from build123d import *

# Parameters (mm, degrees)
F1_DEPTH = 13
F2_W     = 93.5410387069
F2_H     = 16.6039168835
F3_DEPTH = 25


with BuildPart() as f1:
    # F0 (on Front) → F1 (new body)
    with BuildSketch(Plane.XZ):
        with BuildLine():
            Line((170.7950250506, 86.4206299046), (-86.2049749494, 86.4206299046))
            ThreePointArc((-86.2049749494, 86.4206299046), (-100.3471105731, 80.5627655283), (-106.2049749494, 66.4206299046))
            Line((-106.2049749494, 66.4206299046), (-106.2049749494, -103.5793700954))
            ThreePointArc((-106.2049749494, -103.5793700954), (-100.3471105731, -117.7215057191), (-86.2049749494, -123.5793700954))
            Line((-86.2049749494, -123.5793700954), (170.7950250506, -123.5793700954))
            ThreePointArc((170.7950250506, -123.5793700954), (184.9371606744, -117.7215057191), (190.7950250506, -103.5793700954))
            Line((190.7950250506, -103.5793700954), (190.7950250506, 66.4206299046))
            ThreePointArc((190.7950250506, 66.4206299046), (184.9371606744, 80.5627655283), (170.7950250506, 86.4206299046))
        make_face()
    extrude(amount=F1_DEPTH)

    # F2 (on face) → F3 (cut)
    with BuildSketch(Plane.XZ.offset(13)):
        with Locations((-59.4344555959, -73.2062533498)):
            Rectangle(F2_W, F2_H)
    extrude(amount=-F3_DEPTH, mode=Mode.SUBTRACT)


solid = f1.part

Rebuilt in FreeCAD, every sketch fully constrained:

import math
import FreeCAD as App
import Part
import Sketcher
Q = App.Units.Quantity

doc = App.newDocument("Part")
body = doc.addObject("PartDesign::Body", "Body")

sketch1 = body.newObject("Sketcher::SketchObject", "Sketch")
sketch1.AttachmentSupport = (doc.getObject("XZ_Plane"), [""])
sketch1.MapMode = "FlatFace"
sketch1.addGeometry([
    Part.LineSegment(App.Vector(170.795025, 86.42063, 0), App.Vector(-86.204975, 86.42063, 0)),
    Part.ArcOfCircle(Part.Circle(App.Vector(-86.204975, 66.42063, 0), App.Vector(0, 0, 1), 20), math.radians(90), math.radians(180)),
    Part.LineSegment(App.Vector(-106.204975, 66.42063, 0), App.Vector(-106.204975, -103.57937, 0)),
    Part.ArcOfCircle(Part.Circle(App.Vector(-86.204975, -103.57937, 0), App.Vector(0, 0, 1), 20), math.radians(180), math.radians(270)),
    Part.LineSegment(App.Vector(-86.204975, -123.57937, 0), App.Vector(170.795025, -123.57937, 0)),
    Part.ArcOfCircle(Part.Circle(App.Vector(170.795025, -103.57937, 0), App.Vector(0, 0, 1), 20), math.radians(-90), math.radians(0)),
    Part.LineSegment(App.Vector(190.795025, -103.57937, 0), App.Vector(190.795025, 66.42063, 0)),
    Part.ArcOfCircle(Part.Circle(App.Vector(170.795025, 66.42063, 0), App.Vector(0, 0, 1), 20), math.radians(0), math.radians(90)),
], False)
sketch1.addConstraint([
    Sketcher.Constraint("Tangent", 0, 2, 1, 1),
    Sketcher.Constraint("Tangent", 1, 2, 2, 1),
    Sketcher.Constraint("Tangent", 2, 2, 3, 1),
    Sketcher.Constraint("Tangent", 3, 2, 4, 1),
    Sketcher.Constraint("Tangent", 4, 2, 5, 1),
    Sketcher.Constraint("Tangent", 5, 2, 6, 1),
    Sketcher.Constraint("Tangent", 6, 2, 7, 1),
    Sketcher.Constraint("Tangent", 7, 2, 0, 1),
    Sketcher.Constraint("Horizontal", 0),
    Sketcher.Constraint("Vertical", 2),
    Sketcher.Constraint("Horizontal", 4),
    Sketcher.Constraint("Vertical", 6),
    Sketcher.Constraint("Equal", 1, 3),
    Sketcher.Constraint("Equal", 3, 5),
    Sketcher.Constraint("Equal", 5, 7),
    Sketcher.Constraint("Radius", 1, Q("20 mm")),
    Sketcher.Constraint("DistanceX", 0, 2, 0, 1, Q("257 mm")),
    Sketcher.Constraint("DistanceY", 2, 2, 2, 1, Q("170 mm")),
    Sketcher.Constraint("DistanceY", -1, 1, 1, 3, Q("66.42063 mm")),
    Sketcher.Constraint("DistanceX", 1, 3, -1, 1, Q("86.204975 mm")),
])
pad1 = body.newObject("PartDesign::Pad", "Pad")
pad1.Profile = sketch1
pad1.Length = 13

sketch2 = body.newObject("Sketcher::SketchObject", "Sketch001")
sketch2.AttachmentSupport = (doc.getObject("XZ_Plane"), [""])
sketch2.MapMode = "FlatFace"
sketch2.AttachmentOffset = App.Placement(App.Vector(0, 0, 13), App.Rotation())
sketch2.addGeometry([
    Part.LineSegment(App.Vector(-106.204975, -64.904295, 0), App.Vector(-106.204975, -81.508212, 0)),
    Part.LineSegment(App.Vector(-106.204975, -81.508212, 0), App.Vector(-12.663936, -81.508212, 0)),
    Part.LineSegment(App.Vector(-12.663936, -81.508212, 0), App.Vector(-12.663936, -64.904295, 0)),
    Part.LineSegment(App.Vector(-12.663936, -64.904295, 0), App.Vector(-106.204975, -64.904295, 0)),
], False)
sketch2.addConstraint([
    Sketcher.Constraint("Coincident", 0, 2, 1, 1),
    Sketcher.Constraint("Coincident", 1, 2, 2, 1),
    Sketcher.Constraint("Coincident", 2, 2, 3, 1),
    Sketcher.Constraint("Coincident", 3, 2, 0, 1),
    Sketcher.Constraint("Vertical", 0),
    Sketcher.Constraint("Horizontal", 1),
    Sketcher.Constraint("Vertical", 2),
    Sketcher.Constraint("Horizontal", 3),
    Sketcher.Constraint("DistanceX", 1, 1, 1, 2, Q("93.541039 mm")),
    Sketcher.Constraint("DistanceY", 0, 2, 0, 1, Q("16.603917 mm")),
    Sketcher.Constraint("DistanceY", 0, 2, -1, 1, Q("81.508212 mm")),
    Sketcher.Constraint("DistanceX", 0, 2, -1, 1, Q("106.204975 mm")),
])
pocket1 = body.newObject("PartDesign::Pocket", "Pocket")
pocket1.Profile = sketch2
pocket1.Length = 25

doc.recompute()
